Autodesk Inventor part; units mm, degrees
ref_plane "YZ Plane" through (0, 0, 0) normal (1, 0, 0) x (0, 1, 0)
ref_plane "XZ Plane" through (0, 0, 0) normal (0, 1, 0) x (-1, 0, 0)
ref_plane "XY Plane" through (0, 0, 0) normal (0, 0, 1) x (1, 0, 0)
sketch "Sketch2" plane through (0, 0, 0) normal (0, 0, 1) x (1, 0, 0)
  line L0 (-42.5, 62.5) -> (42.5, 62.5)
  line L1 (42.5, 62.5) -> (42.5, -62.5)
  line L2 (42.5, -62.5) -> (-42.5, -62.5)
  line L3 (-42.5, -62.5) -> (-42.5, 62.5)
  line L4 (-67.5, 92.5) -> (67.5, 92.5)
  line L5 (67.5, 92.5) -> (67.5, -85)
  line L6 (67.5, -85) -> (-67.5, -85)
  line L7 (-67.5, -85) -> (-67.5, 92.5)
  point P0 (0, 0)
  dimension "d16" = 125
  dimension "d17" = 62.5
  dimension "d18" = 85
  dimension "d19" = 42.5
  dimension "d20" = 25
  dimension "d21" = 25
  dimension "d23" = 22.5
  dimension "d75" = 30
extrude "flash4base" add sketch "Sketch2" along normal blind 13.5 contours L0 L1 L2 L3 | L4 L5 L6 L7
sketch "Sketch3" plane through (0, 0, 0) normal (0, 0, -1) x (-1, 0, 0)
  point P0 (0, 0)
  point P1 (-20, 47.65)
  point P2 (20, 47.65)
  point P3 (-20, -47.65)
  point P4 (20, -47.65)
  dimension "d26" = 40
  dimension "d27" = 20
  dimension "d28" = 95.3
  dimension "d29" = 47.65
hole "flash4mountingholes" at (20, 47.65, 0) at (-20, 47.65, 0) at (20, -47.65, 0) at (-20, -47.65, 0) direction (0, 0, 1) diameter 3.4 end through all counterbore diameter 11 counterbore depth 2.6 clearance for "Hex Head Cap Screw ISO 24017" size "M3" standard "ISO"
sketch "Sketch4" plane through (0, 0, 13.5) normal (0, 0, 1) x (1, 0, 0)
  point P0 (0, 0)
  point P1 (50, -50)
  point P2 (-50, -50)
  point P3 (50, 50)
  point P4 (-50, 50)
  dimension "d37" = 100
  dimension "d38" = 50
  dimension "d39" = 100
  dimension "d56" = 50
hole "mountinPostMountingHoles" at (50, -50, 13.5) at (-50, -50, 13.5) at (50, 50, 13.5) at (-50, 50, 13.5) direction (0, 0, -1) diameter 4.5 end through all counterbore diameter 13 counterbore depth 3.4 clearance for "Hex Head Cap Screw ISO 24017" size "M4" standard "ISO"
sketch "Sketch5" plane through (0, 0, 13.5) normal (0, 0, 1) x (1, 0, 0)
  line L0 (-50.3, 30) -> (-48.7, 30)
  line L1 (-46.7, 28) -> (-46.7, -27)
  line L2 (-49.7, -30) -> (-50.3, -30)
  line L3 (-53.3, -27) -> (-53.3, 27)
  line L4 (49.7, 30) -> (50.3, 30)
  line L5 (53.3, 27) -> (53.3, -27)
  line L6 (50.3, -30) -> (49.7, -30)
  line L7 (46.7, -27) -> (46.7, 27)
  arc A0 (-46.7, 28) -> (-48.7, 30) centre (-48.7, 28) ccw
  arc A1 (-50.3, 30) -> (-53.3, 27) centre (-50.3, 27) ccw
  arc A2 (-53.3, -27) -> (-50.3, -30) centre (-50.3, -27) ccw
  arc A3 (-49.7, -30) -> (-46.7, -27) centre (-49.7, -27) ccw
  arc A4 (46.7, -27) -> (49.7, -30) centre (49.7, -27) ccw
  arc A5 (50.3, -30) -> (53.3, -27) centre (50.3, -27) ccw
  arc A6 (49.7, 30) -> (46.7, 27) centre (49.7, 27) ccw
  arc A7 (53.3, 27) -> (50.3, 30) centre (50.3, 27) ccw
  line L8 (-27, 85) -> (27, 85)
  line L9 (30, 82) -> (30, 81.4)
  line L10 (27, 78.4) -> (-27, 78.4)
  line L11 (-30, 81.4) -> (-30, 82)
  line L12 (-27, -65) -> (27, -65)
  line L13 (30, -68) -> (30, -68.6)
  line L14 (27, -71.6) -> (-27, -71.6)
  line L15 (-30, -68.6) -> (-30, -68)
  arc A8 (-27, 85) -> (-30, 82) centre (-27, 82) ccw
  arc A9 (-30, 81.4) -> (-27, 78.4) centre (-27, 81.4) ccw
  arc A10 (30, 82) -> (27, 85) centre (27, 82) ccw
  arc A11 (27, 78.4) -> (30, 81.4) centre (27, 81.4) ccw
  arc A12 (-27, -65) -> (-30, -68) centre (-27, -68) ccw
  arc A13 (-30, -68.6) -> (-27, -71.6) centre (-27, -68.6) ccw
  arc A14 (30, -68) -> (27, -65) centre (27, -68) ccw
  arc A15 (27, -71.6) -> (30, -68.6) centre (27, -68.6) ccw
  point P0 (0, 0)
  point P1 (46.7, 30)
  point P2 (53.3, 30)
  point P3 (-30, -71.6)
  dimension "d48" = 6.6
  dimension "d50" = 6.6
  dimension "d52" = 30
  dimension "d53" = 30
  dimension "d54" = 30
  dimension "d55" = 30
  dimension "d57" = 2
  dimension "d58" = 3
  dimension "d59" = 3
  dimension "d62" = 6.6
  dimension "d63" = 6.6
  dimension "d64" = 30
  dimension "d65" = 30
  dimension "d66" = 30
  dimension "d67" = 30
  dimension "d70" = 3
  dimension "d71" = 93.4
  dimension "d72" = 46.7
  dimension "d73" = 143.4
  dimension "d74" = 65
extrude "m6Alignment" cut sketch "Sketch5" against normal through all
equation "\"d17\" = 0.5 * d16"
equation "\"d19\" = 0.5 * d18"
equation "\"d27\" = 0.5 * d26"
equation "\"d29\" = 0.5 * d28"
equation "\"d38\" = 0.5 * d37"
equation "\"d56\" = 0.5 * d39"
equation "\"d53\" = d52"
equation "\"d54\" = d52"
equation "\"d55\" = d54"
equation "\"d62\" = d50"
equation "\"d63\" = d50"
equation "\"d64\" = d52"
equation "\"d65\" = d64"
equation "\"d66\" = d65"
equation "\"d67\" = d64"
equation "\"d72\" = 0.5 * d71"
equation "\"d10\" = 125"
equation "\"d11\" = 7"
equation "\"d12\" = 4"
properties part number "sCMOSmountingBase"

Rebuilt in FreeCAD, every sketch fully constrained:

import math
import FreeCAD as App
import Part
import Sketcher
Q = App.Units.Quantity

doc = App.newDocument("Part")
body = doc.addObject("PartDesign::Body", "Body")

sketch1 = body.newObject("Sketcher::SketchObject", "Sketch")
sketch1.AttachmentSupport = (doc.getObject("XY_Plane"), [""])
sketch1.MapMode = "FlatFace"
sketch1.addGeometry([
    Part.LineSegment(App.Vector(67.5, 92.5, 0), App.Vector(-67.5, 92.5, 0)),
    Part.LineSegment(App.Vector(-67.5, 92.5, 0), App.Vector(-67.5, -85, 0)),
    Part.LineSegment(App.Vector(-67.5, -85, 0), App.Vector(67.5, -85, 0)),
    Part.LineSegment(App.Vector(67.5, -85, 0), App.Vector(67.5, 92.5, 0)),
], False)
sketch1.addConstraint([
    Sketcher.Constraint("Coincident", 0, 2, 1, 1),
    Sketcher.Constraint("Coincident", 1, 2, 2, 1),
    Sketcher.Constraint("Coincident", 2, 2, 3, 1),
    Sketcher.Constraint("Coincident", 3, 2, 0, 1),
    Sketcher.Constraint("Horizontal", 0),
    Sketcher.Constraint("Vertical", 1),
    Sketcher.Constraint("Horizontal", 2),
    Sketcher.Constraint("Vertical", 3),
    Sketcher.Constraint("DistanceY", 1, 2, -1, 1, Q("85 mm")),
    Sketcher.Constraint("DistanceX", 0, 2, 0, 1, Q("135 mm")),
    Sketcher.Constraint("DistanceY", 1, 2, 1, 1, Q("177.5 mm")),
    Sketcher.Constraint("DistanceX", 0, 2, -1, 1, Q("67.5 mm")),
])
pad1 = body.newObject("PartDesign::Pad", "Pad")
pad1.Profile = sketch1
pad1.Length = 13.5

sketch2 = body.newObject("Sketcher::SketchObject", "Sketch001")
sketch2.AttachmentSupport = (doc.getObject("XY_Plane"), [""])
sketch2.MapMode = "FlatFace"
sketch2.addGeometry([
    Part.Circle(App.Vector(20, 47.65, 0), App.Vector(0, 0, 1), 1.7),
    Part.Circle(App.Vector(-20, 47.65, 0), App.Vector(0, 0, 1), 1.7),
    Part.Circle(App.Vector(20, -47.65, 0), App.Vector(0, 0, 1), 1.7),
    Part.Circle(App.Vector(-20, -47.65, 0), App.Vector(0, 0, 1), 1.7),
], False)
sketch2.addConstraint([
    Sketcher.Constraint("Equal", 0, 1),
    Sketcher.Constraint("Equal", 1, 2),
    Sketcher.Constraint("Equal", 2, 3),
    Sketcher.Constraint("Symmetric", 1, 3, 2, 3, -1, 1),
    Sketcher.Constraint("Symmetric", 0, 3, 3, 3, -1, 1),
    Sketcher.Constraint("Symmetric", 0, 3, 1, 3, -2),
    Sketcher.Constraint("Diameter", 0, Q("3.4 mm")),
    Sketcher.Constraint("DistanceX", -1, 1, 0, 3, Q("20 mm")),
    Sketcher.Constraint("DistanceY", 2, 3, 0, 3, Q("95.3 mm")),
])
doc.recompute()
hole = body.newObject("PartDesign::Hole", "Hole")
hole.Profile = sketch2
hole.ThreadType = "None"
hole.Diameter = 3.4
hole.DepthType = "ThroughAll"
hole.HoleCutType = "Counterbore"
hole.HoleCutDiameter = 11
hole.HoleCutDepth = 2.6
hole.Reversed = True

sketch3 = body.newObject("Sketcher::SketchObject", "Sketch002")
sketch3.AttachmentSupport = (doc.getObject("XY_Plane"), [""])
sketch3.MapMode = "FlatFace"
sketch3.AttachmentOffset = App.Placement(App.Vector(0, 0, 13.5), App.Rotation())
sketch3.addGeometry([
    Part.Circle(App.Vector(50, -50, 0), App.Vector(0, 0, 1), 2.25),
    Part.Circle(App.Vector(-50, -50, 0), App.Vector(0, 0, 1), 2.25),
    Part.Circle(App.Vector(50, 50, 0), App.Vector(0, 0, 1), 2.25),
    Part.Circle(App.Vector(-50, 50, 0), App.Vector(0, 0, 1), 2.25),
], False)
sketch3.addConstraint([
    Sketcher.Constraint("Equal", 0, 1),
    Sketcher.Constraint("Equal", 1, 2),
    Sketcher.Constraint("Equal", 2, 3),
    Sketcher.Constraint("Symmetric", 1, 3, 2, 3, -1, 1),
    Sketcher.Constraint("Symmetric", 0, 3, 3, 3, -1, 1),
    Sketcher.Constraint("Symmetric", 0, 3, 1, 3, -2),
    Sketcher.Constraint("Diameter", 0, Q("4.5 mm")),
    Sketcher.Constraint("DistanceX", -1, 1, 0, 3, Q("50 mm")),
    Sketcher.Constraint("DistanceY", 0, 3, -1, 1, Q("50 mm")),
])
doc.recompute()
hole2 = body.newObject("PartDesign::Hole", "Hole001")
hole2.Profile = sketch3
hole2.ThreadType = "None"
hole2.Diameter = 4.5
hole2.DepthType = "ThroughAll"
hole2.HoleCutType = "Counterbore"
hole2.HoleCutDiameter = 13
hole2.HoleCutDepth = 3.4

sketch4 = body.newObject("Sketcher::SketchObject", "Sketch003")
sketch4.AttachmentSupport = (doc.getObject("XY_Plane"), [""])
sketch4.MapMode = "FlatFace"
sketch4.AttachmentOffset = App.Placement(App.Vector(0, 0, 13.5), App.Rotation())
sketch4.addGeometry([
    Part.LineSegment(App.Vector(-48.7, 30, 0), App.Vector(-50.3, 30, 0)),
    Part.ArcOfCircle(Part.Circle(App.Vector(-50.3, 27, 0), App.Vector(0, 0, 1), 3), math.radians(90), math.radians(180)),
    Part.LineSegment(App.Vector(-53.3, 27, 0), App.Vector(-53.3, -27, 0)),
    Part.ArcOfCircle(Part.Circle(App.Vector(-50.3, -27, 0), App.Vector(0, 0, 1), 3), math.radians(180), math.radians(270)),
    Part.LineSegment(App.Vector(-50.3, -30, 0), App.Vector(-49.7, -30, 0)),
    Part.ArcOfCircle(Part.Circle(App.Vector(-49.7, -27, 0), App.Vector(0, 0, 1), 3), math.radians(-90), math.radians(0)),
    Part.LineSegment(App.Vector(-46.7, -27, 0), App.Vector(-46.7, 28, 0)),
    Part.ArcOfCircle(Part.Circle(App.Vector(-48.7, 28, 0), App.Vector(0, 0, 1), 2), math.radians(0), math.radians(90)),
    Part.LineSegment(App.Vector(50.3, 30, 0), App.Vector(49.7, 30, 0)),
    Part.ArcOfCircle(Part.Circle(App.Vector(49.7, 27, 0), App.Vector(0, 0, 1), 3), math.radians(90), math.radians(180)),
    Part.LineSegment(App.Vector(46.7, 27, 0), App.Vector(46.7, -27, 0)),
    Part.ArcOfCircle(Part.Circle(App.Vector(49.7, -27, 0), App.Vector(0, 0, 1), 3), math.radians(180), math.radians(270)),
    Part.LineSegment(App.Vector(49.7, -30, 0), App.Vector(50.3, -30, 0)),
    Part.ArcOfCircle(Part.Circle(App.Vector(50.3, -27, 0), App.Vector(0, 0, 1), 3), math.radians(-90), math.radians(0)),
    Part.LineSegment(App.Vector(53.3, -27, 0), App.Vector(53.3, 27, 0)),
    Part.ArcOfCircle(Part.Circle(App.Vector(50.3, 27, 0), App.Vector(0, 0, 1), 3), math.radians(0), math.radians(90)),
    Part.LineSegment(App.Vector(27, 85, 0), App.Vector(-27, 85, 0)),
    Part.ArcOfCircle(Part.Circle(App.Vector(-27, 82, 0), App.Vector(0, 0, 1), 3), math.radians(90), math.radians(180)),
    Part.LineSegment(App.Vector(-30, 82, 0), App.Vector(-30, 81.4, 0)),
    Part.ArcOfCircle(Part.Circle(App.Vector(-27, 81.4, 0), App.Vector(0, 0, 1), 3), math.radians(180), math.radians(270)),
    Part.LineSegment(App.Vector(-27, 78.4, 0), App.Vector(27, 78.4, 0)),
    Part.ArcOfCircle(Part.Circle(App.Vector(27, 81.4, 0), App.Vector(0, 0, 1), 3), math.radians(-90), math.radians(0)),
    Part.LineSegment(App.Vector(30, 81.4, 0), App.Vector(30, 82, 0)),
    Part.ArcOfCircle(Part.Circle(App.Vector(27, 82, 0), App.Vector(0, 0, 1), 3), math.radians(0), math.radians(90)),
    Part.LineSegment(App.Vector(27, -65, 0), App.Vector(-27, -65, 0)),
    Part.ArcOfCircle(Part.Circle(App.Vector(-27, -68, 0), App.Vector(0, 0, 1), 3), math.radians(90), math.radians(180)),
    Part.LineSegment(App.Vector(-30, -68, 0), App.Vector(-30, -68.6, 0)),
    Part.ArcOfCircle(Part.Circle(App.Vector(-27, -68.6, 0), App.Vector(0, 0, 1), 3), math.radians(180), math.radians(270)),
    Part.LineSegment(App.Vector(-27, -71.6, 0), App.Vector(27, -71.6, 0)),
    Part.ArcOfCircle(Part.Circle(App.Vector(27, -68.6, 0), App.Vector(0, 0, 1), 3), math.radians(-90), math.radians(0)),
    Part.LineSegment(App.Vector(30, -68.6, 0), App.Vector(30, -68, 0)),
    Part.ArcOfCircle(Part.Circle(App.Vector(27, -68, 0), App.Vector(0, 0, 1), 3), math.radians(0), math.radians(90)),
], False)
sketch4.addConstraint([
    Sketcher.Constraint("Tangent", 0, 2, 1, 1),
    Sketcher.Constraint("Tangent", 1, 2, 2, 1),
    Sketcher.Constraint("Tangent", 2, 2, 3, 1),
    Sketcher.Constraint("Tangent", 3, 2, 4, 1),
    Sketcher.Constraint("Tangent", 4, 2, 5, 1),
    Sketcher.Constraint("Tangent", 5, 2, 6, 1),
    Sketcher.Constraint("Tangent", 6, 2, 7, 1),
    Sketcher.Constraint("Tangent", 7, 2, 0, 1),
    Sketcher.Constraint("Tangent", 8, 2, 9, 1),
    Sketcher.Constraint("Tangent", 9, 2, 10, 1),
    Sketcher.Constraint("Tangent", 10, 2, 11, 1),
    Sketcher.Constraint("Tangent", 11, 2, 12, 1),
    Sketcher.Constraint("Tangent", 12, 2, 13, 1),
    Sketcher.Constraint("Tangent", 13, 2, 14, 1),
    Sketcher.Constraint("Tangent", 14, 2, 15, 1),
    Sketcher.Constraint("Tangent", 15, 2, 8, 1),
    Sketcher.Constraint("Tangent", 16, 2, 17, 1),
    Sketcher.Constraint("Tangent", 17, 2, 18, 1),
    Sketcher.Constraint("Tangent", 18, 2, 19, 1),
    Sketcher.Constraint("Tangent", 19, 2, 20, 1),
    Sketcher.Constraint("Tangent", 20, 2, 21, 1),
    Sketcher.Constraint("Tangent", 21, 2, 22, 1),
    Sketcher.Constraint("Tangent", 22, 2, 23, 1),
    Sketcher.Constraint("Tangent", 23, 2, 16, 1),
    Sketcher.Constraint("Tangent", 24, 2, 25, 1),
    Sketcher.Constraint("Tangent", 25, 2, 26, 1),
    Sketcher.Constraint("Tangent", 26, 2, 27, 1),
    Sketcher.Constraint("Tangent", 27, 2, 28, 1),
    Sketcher.Constraint("Tangent", 28, 2, 29, 1),
    Sketcher.Constraint("Tangent", 29, 2, 30, 1),
    Sketcher.Constraint("Tangent", 30, 2, 31, 1),
    Sketcher.Constraint("Tangent", 31, 2, 24, 1),
    Sketcher.Constraint("Horizontal", 0),
    Sketcher.Constraint("Vertical", 2),
    Sketcher.Constraint("Horizontal", 4),
    Sketcher.Constraint("Vertical", 6),
    Sketcher.Constraint("Horizontal", 8),
    Sketcher.Constraint("Vertical", 10),
    Sketcher.Constraint("Horizontal", 12),
    Sketcher.Constraint("Vertical", 14),
    Sketcher.Constraint("Horizontal", 16),
    Sketcher.Constraint("Vertical", 18),
    Sketcher.Constraint("Horizontal", 20),
    Sketcher.Constraint("Vertical", 22),
    Sketcher.Constraint("Horizontal", 24),
    Sketcher.Constraint("Vertical", 26),
    Sketcher.Constraint("Horizontal", 28),
    Sketcher.Constraint("Vertical", 30),
    Sketcher.Constraint("Equal", 1, 3),
    Sketcher.Constraint("Equal", 3, 5),
    Sketcher.Constraint("Equal", 5, 9),
    Sketcher.Constraint("Equal", 9, 11),
    Sketcher.Constraint("Equal", 11, 13),
    Sketcher.Constraint("Equal", 13, 15),
    Sketcher.Constraint("Equal", 15, 17),
    Sketcher.Constraint("Equal", 17, 19),
    Sketcher.Constraint("Equal", 19, 21),
    Sketcher.Constraint("Equal", 21, 23),
    Sketcher.Constraint("Equal", 23, 25),
    Sketcher.Constraint("Equal", 25, 27),
    Sketcher.Constraint("Equal", 27, 29),
    Sketcher.Constraint("Equal", 29, 31),
    Sketcher.Constraint("Symmetric", 5, 3, 9, 3, -1, 1),
    Sketcher.Constraint("Symmetric", 1, 3, 13, 3, -1, 1),
    Sketcher.Constraint("Horizontal", 1, 3, 9, 3),
    Sketcher.Constraint("Vertical", 19, 3, 25, 3),
    Sketcher.Constraint("Vertical", 23, 3, 29, 3),
    Sketcher.Constraint("Equal", 28, 2),
    Sketcher.Constraint("Equal", 12, 18),
    Sketcher.Constraint("Equal", 22, 26),
    Sketcher.Constraint("Radius", 1, Q("3 mm")),
    Sketcher.Constraint("Radius", 7, Q("2 mm")),
    Sketcher.Constraint("DistanceY", -1, 1, 0, 2, Q("30 mm")),
    Sketcher.Constraint("DistanceX", 17, 2, -1, 1, Q("30 mm")),
    Sketcher.Constraint("DistanceY", 24, 2, -1, 1, Q("65 mm")),
    Sketcher.Constraint("DistanceX", 5, 2, -1, 1, Q("46.7 mm")),
    Sketcher.Constraint("DistanceX", 2, 2, 5, 2, Q("6.6 mm")),
    Sketcher.Constraint("DistanceY", -1, 1, 17, 3, Q("82 mm")),
])
pocket1 = body.newObject("PartDesign::Pocket", "Pocket")
pocket1.Profile = sketch4
pocket1.Type = "ThroughAll"

doc.recompute()
